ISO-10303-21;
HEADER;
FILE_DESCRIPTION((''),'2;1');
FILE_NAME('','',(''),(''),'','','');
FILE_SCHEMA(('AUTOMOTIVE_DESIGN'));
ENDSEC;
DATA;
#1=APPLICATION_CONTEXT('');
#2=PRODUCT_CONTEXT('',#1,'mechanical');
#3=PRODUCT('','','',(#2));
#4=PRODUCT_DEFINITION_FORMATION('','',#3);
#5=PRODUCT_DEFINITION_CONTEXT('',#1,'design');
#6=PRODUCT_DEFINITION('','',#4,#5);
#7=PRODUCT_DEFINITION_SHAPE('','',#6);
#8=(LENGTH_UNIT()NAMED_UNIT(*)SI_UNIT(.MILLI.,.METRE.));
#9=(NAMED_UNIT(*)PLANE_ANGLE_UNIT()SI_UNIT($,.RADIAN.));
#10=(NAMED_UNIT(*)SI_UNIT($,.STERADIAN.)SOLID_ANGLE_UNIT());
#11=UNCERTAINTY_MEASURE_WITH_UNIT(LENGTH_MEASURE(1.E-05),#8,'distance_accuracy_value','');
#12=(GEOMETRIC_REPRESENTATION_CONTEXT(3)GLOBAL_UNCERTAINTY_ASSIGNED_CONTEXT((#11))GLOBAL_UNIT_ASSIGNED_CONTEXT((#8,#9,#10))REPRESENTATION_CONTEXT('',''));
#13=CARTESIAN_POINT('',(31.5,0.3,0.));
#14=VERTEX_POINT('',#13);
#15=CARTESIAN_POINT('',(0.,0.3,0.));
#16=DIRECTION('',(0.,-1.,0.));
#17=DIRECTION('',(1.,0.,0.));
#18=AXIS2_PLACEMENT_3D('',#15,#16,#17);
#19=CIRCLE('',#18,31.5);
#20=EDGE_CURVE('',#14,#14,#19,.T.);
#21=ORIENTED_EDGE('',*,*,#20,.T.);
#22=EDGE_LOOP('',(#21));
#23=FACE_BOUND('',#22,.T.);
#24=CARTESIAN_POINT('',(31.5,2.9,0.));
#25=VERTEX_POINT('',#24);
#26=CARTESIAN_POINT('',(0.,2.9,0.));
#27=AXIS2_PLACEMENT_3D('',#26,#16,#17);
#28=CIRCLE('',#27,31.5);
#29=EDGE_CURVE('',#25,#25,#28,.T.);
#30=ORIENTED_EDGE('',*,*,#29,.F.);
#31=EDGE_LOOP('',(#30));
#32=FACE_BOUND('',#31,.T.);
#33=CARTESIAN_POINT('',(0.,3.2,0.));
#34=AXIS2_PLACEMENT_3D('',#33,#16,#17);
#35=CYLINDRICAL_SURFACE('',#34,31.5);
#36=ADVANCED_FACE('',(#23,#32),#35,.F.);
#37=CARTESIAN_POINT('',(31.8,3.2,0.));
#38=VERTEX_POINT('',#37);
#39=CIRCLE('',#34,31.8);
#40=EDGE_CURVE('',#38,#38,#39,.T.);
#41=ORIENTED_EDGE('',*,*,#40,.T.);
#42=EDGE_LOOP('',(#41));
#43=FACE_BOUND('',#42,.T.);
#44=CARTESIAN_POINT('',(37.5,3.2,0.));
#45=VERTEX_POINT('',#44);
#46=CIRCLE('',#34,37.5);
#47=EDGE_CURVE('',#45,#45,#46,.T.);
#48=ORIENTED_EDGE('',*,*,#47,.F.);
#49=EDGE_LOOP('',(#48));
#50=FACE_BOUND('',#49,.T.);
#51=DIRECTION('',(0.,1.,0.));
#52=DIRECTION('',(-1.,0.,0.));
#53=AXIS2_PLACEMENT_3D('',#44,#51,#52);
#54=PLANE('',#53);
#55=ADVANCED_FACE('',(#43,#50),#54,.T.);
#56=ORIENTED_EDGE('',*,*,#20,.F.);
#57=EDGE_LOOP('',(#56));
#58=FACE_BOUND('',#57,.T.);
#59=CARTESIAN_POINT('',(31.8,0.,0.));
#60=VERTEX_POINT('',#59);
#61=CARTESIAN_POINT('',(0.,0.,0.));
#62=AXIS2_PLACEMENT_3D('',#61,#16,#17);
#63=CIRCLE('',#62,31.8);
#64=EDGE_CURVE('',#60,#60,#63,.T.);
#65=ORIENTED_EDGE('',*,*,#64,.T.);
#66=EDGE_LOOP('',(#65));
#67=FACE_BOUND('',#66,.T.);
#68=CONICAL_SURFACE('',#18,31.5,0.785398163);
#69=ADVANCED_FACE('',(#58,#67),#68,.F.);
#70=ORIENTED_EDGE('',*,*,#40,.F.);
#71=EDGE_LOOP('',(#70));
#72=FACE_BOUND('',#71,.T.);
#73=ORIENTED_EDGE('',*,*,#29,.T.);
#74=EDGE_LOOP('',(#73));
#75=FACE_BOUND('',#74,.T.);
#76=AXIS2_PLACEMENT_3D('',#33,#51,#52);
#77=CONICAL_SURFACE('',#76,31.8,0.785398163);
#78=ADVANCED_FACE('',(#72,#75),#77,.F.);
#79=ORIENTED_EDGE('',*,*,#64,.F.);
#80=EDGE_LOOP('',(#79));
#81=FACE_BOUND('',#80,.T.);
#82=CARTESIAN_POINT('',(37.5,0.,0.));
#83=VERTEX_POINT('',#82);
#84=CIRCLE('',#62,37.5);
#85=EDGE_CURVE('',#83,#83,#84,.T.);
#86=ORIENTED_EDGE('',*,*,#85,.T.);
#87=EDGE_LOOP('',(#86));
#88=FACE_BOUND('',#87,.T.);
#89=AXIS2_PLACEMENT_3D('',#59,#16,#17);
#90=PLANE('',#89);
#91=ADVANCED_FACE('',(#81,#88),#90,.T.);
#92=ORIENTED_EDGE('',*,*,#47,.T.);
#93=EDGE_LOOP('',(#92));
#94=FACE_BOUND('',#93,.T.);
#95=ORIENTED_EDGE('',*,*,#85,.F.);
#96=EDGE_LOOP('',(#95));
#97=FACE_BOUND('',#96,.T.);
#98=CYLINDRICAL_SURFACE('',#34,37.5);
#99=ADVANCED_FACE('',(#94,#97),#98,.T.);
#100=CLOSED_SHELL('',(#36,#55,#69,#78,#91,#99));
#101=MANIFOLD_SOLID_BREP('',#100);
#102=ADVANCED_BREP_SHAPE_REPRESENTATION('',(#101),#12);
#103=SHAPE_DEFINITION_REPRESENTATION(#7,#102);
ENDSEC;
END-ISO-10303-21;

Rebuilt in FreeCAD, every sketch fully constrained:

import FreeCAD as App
import Part
import Sketcher
from FreeCAD import Vector


def add_polygon(sketch, points):
    """Adds a closed chain of lines whose ends are joined by coincident constraints."""
    first, n = sketch.GeometryCount, len(points)
    for a, b in zip(points, points[1:] + points[:1]):
        sketch.addGeometry(Part.LineSegment(App.Vector(*a, 0), App.Vector(*b, 0)), False)
    for i in range(n):
        sketch.addConstraint(Sketcher.Constraint("Coincident", first + i, 2, first + (i + 1) % n, 1))

doc = App.newDocument("Part")
body = doc.addObject("PartDesign::Body", "Body")

sketch1 = body.newObject("Sketcher::SketchObject", "Sketch")
sketch1.AttachmentSupport = (doc.getObject("XY_Plane"), [""])
sketch1.MapMode = "FlatFace"
add_polygon(sketch1, [(37.5, 3.2), (31.8, 3.2), (31.5, 2.9), (31.5, 0.3), (31.8, 0), (37.5, 0)])
sketch1.addConstraint(Sketcher.Constraint("Horizontal", 0))
sketch1.addConstraint(Sketcher.Constraint("Vertical", 2))
sketch1.addConstraint(Sketcher.Constraint("Horizontal", 4))
sketch1.addConstraint(Sketcher.Constraint("Vertical", 5))
sketch1.addConstraint(Sketcher.Constraint("PointOnObject", 3, 2, -1))
sketch1.addConstraint(Sketcher.Constraint("Perpendicular", 1, 3))
sketch1.addConstraint(Sketcher.Constraint("Vertical", 0, 2, 3, 2))
sketch1.addConstraint(Sketcher.Constraint("Equal", 1, 3))
sketch1.addConstraint(Sketcher.Constraint("DistanceX", 0, 2, 0, 1, 5.7))
sketch1.addConstraint(Sketcher.Constraint("DistanceY", 2, 2, 2, 1, 2.6))
sketch1.addConstraint(Sketcher.Constraint("DistanceY", 5, 1, 5, 2, 3.2))
sketch1.addConstraint(Sketcher.Constraint("DistanceX", -1, 1, 0, 2, 31.8))
revolution = body.newObject("PartDesign::Revolution", "Revolution")
revolution.Profile = sketch1
revolution.ReferenceAxis = (sketch1, ["V_Axis"])
revolution.Angle = 360

doc.recompute()
